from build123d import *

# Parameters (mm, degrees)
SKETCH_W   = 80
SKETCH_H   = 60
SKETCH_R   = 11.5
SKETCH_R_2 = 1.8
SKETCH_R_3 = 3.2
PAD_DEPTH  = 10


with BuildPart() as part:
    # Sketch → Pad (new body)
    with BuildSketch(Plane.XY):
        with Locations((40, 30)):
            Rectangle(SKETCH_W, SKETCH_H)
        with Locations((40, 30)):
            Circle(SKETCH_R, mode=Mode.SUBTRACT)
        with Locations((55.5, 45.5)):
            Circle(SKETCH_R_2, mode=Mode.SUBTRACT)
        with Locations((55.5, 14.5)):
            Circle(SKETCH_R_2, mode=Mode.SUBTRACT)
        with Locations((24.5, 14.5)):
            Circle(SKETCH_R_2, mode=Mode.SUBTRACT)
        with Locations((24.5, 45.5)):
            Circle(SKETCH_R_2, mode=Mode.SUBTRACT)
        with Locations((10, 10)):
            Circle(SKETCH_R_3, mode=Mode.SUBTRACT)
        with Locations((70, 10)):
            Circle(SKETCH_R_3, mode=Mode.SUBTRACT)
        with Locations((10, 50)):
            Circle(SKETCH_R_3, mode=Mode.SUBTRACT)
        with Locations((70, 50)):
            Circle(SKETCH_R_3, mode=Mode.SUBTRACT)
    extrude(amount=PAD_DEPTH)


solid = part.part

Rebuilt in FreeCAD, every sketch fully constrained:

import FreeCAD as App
import Part
import Sketcher

V = App.Vector
Q = App.Units.Quantity


def add_polygon(sketch, points):
    """Adds a closed chain of lines whose ends are joined by coincident constraints."""
    first, n = sketch.GeometryCount, len(points)
    for a, b in zip(points, points[1:] + points[:1]):
        sketch.addGeometry(Part.LineSegment(App.Vector(*a, 0), App.Vector(*b, 0)), False)
    for i in range(n):
        sketch.addConstraint(Sketcher.Constraint("Coincident", first + i, 2, first + (i + 1) % n, 1))

doc = App.newDocument("Part")
body = doc.addObject("PartDesign::Body", "Body")

# Sketch on XY plane
sketch1 = body.newObject("Sketcher::SketchObject", "Sketch")
sketch1.AttachmentSupport = (doc.getObject("XY_Plane"), [""])
sketch1.MapMode = "FlatFace"
add_polygon(sketch1, [(0, 60), (0, 0), (80, 0), (80, 60)])  # lines 0-3
sketch1.addGeometry(Part.Circle(V(10, 10, 0), V(0, 0, 1), 3.2), False)  # 4
sketch1.addGeometry(Part.Circle(V(24.5, 14.5, 0), V(0, 0, 1), 1.8), False)  # 5
sketch1.addGeometry(Part.Circle(V(55.5, 14.5, 0), V(0, 0, 1), 1.8), False)  # 6
sketch1.addGeometry(Part.Circle(V(70, 10, 0), V(0, 0, 1), 3.2), False)  # 7
sketch1.addGeometry(Part.Circle(V(10, 50, 0), V(0, 0, 1), 3.2), False)  # 8
sketch1.addGeometry(Part.Circle(V(24.5, 45.5, 0), V(0, 0, 1), 1.8), False)  # 9
sketch1.addGeometry(Part.Circle(V(40, 30, 0), V(0, 0, 1), 11.5), False)  # 10
sketch1.addGeometry(Part.Circle(V(55.5, 45.5, 0), V(0, 0, 1), 1.8), False)  # 11
sketch1.addGeometry(Part.Circle(V(70, 50, 0), V(0, 0, 1), 3.2), False)  # 12
sketch1.addConstraint(Sketcher.Constraint("Vertical", 0))
sketch1.addConstraint(Sketcher.Constraint("Horizontal", 1))
sketch1.addConstraint(Sketcher.Constraint("Vertical", 2))
sketch1.addConstraint(Sketcher.Constraint("Horizontal", 3))
sketch1.addConstraint(Sketcher.Constraint("Coincident", 0, 2, -1, 1))
sketch1.addConstraint(Sketcher.Constraint("Equal", 5, 6))
sketch1.addConstraint(Sketcher.Constraint("Equal", 4, 7))
sketch1.addConstraint(Sketcher.Constraint("Equal", 7, 8))
sketch1.addConstraint(Sketcher.Constraint("Equal", 6, 9))
sketch1.addConstraint(Sketcher.Constraint("Equal", 9, 11))
sketch1.addConstraint(Sketcher.Constraint("Equal", 8, 12))
sketch1.addConstraint(Sketcher.Constraint("Horizontal", 5, 3, 6, 3))
sketch1.addConstraint(Sketcher.Constraint("Horizontal", 4, 3, 7, 3))
sketch1.addConstraint(Sketcher.Constraint("Horizontal", 9, 3, 11, 3))
sketch1.addConstraint(Sketcher.Constraint("Horizontal", 8, 3, 12, 3))
sketch1.addConstraint(Sketcher.Constraint("Vertical", 4, 3, 8, 3))
sketch1.addConstraint(Sketcher.Constraint("Vertical", 5, 3, 9, 3))
sketch1.addConstraint(Sketcher.Constraint("Vertical", 6, 3, 11, 3))
sketch1.addConstraint(Sketcher.Constraint("Vertical", 7, 3, 12, 3))
sketch1.addConstraint(Sketcher.Constraint("Diameter", 10, Q("23 mm")))
sketch1.addConstraint(Sketcher.Constraint("Diameter", 4, Q("6.4 mm")))
sketch1.addConstraint(Sketcher.Constraint("Diameter", 5, Q("3.6 mm")))
sketch1.addConstraint(Sketcher.Constraint("DistanceX", 1, 1, 1, 2, Q("80 mm")))
sketch1.addConstraint(Sketcher.Constraint("DistanceY", 0, 2, 0, 1, Q("60 mm")))
sketch1.addConstraint(Sketcher.Constraint("DistanceX", -1, 1, 4, 3, Q("10 mm")))
sketch1.addConstraint(Sketcher.Constraint("DistanceY", -1, 1, 4, 3, Q("10 mm")))
sketch1.addConstraint(Sketcher.Constraint("DistanceX", -1, 1, 7, 3, Q("70 mm")))
sketch1.addConstraint(Sketcher.Constraint("DistanceY", -1, 1, 8, 3, Q("50 mm")))
sketch1.addConstraint(Sketcher.Constraint("DistanceX", -1, 1, 10, 3, Q("40 mm")))
sketch1.addConstraint(Sketcher.Constraint("DistanceY", -1, 1, 10, 3, Q("30 mm")))
sketch1.addConstraint(Sketcher.Constraint("DistanceX", 5, 3, 6, 3, Q("31 mm")))
sketch1.addConstraint(Sketcher.Constraint("DistanceY", 5, 3, 9, 3, Q("31 mm")))
sketch1.addConstraint(Sketcher.Constraint("DistanceX", -1, 1, 5, 3, Q("24.5 mm")))
sketch1.addConstraint(Sketcher.Constraint("DistanceY", -1, 1, 5, 3, Q("14.5 mm")))
pad1 = body.newObject("PartDesign::Pad", "Pad")
pad1.Profile = sketch1
pad1.Length = 10

doc.recompute()
